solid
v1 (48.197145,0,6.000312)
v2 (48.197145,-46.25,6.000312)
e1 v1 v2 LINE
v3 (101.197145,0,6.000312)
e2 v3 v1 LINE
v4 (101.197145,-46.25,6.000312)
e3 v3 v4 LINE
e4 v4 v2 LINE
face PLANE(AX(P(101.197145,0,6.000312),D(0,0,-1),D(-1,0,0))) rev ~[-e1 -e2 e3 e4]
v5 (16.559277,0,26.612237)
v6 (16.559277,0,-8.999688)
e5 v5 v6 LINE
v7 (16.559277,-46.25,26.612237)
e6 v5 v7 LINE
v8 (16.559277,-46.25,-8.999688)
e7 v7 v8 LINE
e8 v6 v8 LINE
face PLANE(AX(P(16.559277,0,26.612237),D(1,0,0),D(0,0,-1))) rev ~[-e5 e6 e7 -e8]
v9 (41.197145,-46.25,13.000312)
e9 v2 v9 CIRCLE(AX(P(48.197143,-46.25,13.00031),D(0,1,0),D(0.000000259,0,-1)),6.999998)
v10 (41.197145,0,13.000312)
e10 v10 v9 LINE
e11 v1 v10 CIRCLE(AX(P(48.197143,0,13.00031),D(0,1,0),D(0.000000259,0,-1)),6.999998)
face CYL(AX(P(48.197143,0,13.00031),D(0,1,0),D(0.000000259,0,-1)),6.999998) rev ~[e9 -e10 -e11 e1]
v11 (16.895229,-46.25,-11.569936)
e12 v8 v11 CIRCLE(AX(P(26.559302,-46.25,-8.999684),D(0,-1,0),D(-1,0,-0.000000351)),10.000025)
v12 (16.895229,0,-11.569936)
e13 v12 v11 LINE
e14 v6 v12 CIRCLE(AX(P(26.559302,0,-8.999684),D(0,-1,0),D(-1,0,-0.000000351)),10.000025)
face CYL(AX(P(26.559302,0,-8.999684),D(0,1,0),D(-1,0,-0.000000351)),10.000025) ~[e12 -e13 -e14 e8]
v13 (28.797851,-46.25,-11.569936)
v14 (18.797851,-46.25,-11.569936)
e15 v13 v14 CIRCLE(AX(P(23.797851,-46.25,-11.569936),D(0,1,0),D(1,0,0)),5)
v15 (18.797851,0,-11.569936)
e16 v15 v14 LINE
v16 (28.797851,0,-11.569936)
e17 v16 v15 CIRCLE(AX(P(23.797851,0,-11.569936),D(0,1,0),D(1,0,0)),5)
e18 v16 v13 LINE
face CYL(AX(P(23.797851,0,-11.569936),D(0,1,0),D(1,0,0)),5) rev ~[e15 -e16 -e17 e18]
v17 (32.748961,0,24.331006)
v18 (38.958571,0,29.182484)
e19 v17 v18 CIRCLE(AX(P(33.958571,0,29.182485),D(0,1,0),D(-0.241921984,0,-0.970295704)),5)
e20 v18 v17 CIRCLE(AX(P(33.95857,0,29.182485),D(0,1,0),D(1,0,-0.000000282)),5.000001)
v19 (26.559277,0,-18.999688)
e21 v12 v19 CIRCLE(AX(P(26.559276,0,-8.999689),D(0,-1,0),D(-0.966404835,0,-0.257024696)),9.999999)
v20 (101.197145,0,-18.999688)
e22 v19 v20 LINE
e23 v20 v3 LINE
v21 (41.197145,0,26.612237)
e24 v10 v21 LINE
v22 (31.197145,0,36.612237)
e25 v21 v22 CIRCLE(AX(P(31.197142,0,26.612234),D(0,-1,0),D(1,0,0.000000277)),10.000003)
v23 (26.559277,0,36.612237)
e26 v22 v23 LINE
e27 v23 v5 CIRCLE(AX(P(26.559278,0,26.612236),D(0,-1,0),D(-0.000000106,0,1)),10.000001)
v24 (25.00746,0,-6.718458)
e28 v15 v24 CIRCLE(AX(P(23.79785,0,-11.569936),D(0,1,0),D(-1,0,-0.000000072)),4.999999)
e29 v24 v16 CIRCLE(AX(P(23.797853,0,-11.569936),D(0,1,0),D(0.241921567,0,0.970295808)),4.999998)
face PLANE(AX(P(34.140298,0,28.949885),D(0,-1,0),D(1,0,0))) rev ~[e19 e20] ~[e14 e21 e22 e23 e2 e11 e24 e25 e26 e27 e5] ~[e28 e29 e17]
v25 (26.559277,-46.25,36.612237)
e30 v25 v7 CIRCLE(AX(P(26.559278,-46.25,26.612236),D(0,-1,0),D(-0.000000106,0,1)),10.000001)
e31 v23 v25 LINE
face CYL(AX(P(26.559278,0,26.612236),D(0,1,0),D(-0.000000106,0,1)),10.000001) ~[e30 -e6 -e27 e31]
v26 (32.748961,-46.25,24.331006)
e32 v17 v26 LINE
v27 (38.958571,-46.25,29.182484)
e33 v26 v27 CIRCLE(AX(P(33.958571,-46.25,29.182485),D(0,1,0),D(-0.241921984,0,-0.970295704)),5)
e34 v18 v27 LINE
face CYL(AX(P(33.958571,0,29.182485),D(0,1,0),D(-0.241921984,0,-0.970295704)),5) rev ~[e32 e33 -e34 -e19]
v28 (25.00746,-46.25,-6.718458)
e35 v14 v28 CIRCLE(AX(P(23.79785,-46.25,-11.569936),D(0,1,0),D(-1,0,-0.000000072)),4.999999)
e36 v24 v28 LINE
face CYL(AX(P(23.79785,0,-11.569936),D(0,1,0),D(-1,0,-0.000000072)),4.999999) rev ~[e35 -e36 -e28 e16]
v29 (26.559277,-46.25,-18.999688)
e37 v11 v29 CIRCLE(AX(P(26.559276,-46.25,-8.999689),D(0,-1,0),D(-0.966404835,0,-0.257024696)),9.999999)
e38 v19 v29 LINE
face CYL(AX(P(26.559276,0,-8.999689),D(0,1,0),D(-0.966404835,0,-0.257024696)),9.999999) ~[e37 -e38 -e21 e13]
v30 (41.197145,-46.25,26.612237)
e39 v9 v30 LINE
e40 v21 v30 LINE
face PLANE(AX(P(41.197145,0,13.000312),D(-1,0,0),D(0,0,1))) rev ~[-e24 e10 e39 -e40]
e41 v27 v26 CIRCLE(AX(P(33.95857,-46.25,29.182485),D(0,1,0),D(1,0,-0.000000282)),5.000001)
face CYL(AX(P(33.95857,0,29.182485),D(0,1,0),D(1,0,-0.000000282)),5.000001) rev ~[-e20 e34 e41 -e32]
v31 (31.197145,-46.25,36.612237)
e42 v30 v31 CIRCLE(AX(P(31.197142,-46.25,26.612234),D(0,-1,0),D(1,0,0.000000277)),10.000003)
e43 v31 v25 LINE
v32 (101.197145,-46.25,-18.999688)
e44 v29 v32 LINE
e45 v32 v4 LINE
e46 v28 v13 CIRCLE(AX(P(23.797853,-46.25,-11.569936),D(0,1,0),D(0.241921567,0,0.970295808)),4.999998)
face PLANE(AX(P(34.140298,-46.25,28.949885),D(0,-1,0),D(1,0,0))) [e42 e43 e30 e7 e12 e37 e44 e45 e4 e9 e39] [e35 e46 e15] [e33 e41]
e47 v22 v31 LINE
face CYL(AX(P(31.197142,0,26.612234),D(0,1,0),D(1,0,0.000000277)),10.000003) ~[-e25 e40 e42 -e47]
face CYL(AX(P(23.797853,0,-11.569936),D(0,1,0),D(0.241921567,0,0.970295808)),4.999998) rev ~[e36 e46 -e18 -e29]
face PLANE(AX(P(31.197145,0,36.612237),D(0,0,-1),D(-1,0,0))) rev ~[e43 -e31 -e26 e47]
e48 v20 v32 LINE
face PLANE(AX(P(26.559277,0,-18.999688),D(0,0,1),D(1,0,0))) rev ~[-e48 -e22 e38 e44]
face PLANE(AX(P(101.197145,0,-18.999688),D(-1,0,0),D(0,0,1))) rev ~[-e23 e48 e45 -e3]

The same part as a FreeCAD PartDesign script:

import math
import FreeCAD as App
import Part
import Sketcher
from FreeCAD import Vector
Q = App.Units.Quantity

doc = App.newDocument("Part")
params = doc.addObject("Spreadsheet::Sheet", "Params")
for row, (alias, value) in enumerate([
    ("sketch1_radius", "9.999999 mm"),
    ("sketch1_radius2", "6.999998 mm"),
    ("sketch1_radius3", "10.000001 mm"),
    ("sketch1_radius4", "4.999998 mm"),
    ("sketch1_radius5", "4.999999 mm"),
    ("pad1_length", "46.25 mm"),
], start=1):
    params.set(f"A{row}", alias)
    params.set(f"B{row}", "=" + value)
    params.setAlias(f"B{row}", alias)

body = doc.addObject("PartDesign::Body", "Body")

# Sketch on XZ plane
sketch1 = body.newObject("Sketcher::SketchObject", "Sketch")
sketch1.AttachmentSupport = (doc.getObject("XZ_Plane"), [""])
sketch1.MapMode = "FlatFace"
sketch1.addGeometry(Part.ArcOfCircle(Part.Circle(Vector(26.559302, -8.999684, 0), Vector(0, 0, 1), 10.000025), math.radians(-179.99998), math.radians(-165.10642)), False)
sketch1.addGeometry(Part.ArcOfCircle(Part.Circle(Vector(26.559276, -8.999689, 0), Vector(0, 0, 1), 9.999999), math.radians(-165.106409), math.radians(-89.999994)), False)
sketch1.addGeometry(Part.LineSegment(Vector(26.559277, -18.999688, 0), Vector(101.197145, -18.999688, 0)), False)
sketch1.addGeometry(Part.LineSegment(Vector(101.197145, -18.999688, 0), Vector(101.197145, 6.000312, 0)), False)
sketch1.addGeometry(Part.LineSegment(Vector(101.197145, 6.000312, 0), Vector(48.197145, 6.000312, 0)), False)
sketch1.addGeometry(Part.ArcOfCircle(Part.Circle(Vector(48.197143, 13.00031, 0), Vector(0, 0, 1), 6.999998), math.radians(179.999985), math.radians(270.000015)), False)
sketch1.addGeometry(Part.LineSegment(Vector(41.197145, 13.000312, 0), Vector(41.197145, 26.612237, 0)), False)
sketch1.addGeometry(Part.ArcOfCircle(Part.Circle(Vector(31.197142, 26.612234, 0), Vector(0, 0, 1), 10.000003), math.radians(0.000016), math.radians(89.999984)), False)
sketch1.addGeometry(Part.LineSegment(Vector(31.197145, 36.612237, 0), Vector(26.559277, 36.612237, 0)), False)
sketch1.addGeometry(Part.ArcOfCircle(Part.Circle(Vector(26.559278, 26.612236, 0), Vector(0, 0, 1), 10.000001), math.radians(90.000006), math.radians(179.999994)), False)
sketch1.addGeometry(Part.LineSegment(Vector(16.559277, 26.612237, 0), Vector(16.559277, -8.999688, 0)), False)
sketch1.addGeometry(Part.ArcOfCircle(Part.Circle(Vector(23.797853, -11.569936, 0), Vector(0, 0, 1), 4.999998), math.radians(-0.000005), math.radians(76.000019)), False)
sketch1.addGeometry(Part.ArcOfCircle(Part.Circle(Vector(23.797851, -11.569936, 0), Vector(0, 0, 1), 5), math.radians(180), math.radians(360)), False)
sketch1.addGeometry(Part.ArcOfCircle(Part.Circle(Vector(23.79785, -11.569936, 0), Vector(0, 0, 1), 4.999999), math.radians(75.999993), math.radians(180.000004)), False)
sketch1.addGeometry(Part.ArcOfCircle(Part.Circle(Vector(33.958571, 29.182485, 0), Vector(0, 0, 1), 5), math.radians(-0.000007), math.radians(255.999995)), False)
sketch1.addGeometry(Part.ArcOfCircle(Part.Circle(Vector(33.95857, 29.182485, 0), Vector(0, 0, 1), 5.000001), math.radians(-103.999996), math.radians(-0.000016)), False)
sketch1.addConstraint(Sketcher.Constraint("Coincident", 0, 2, 1, 1))
sketch1.addConstraint(Sketcher.Constraint("Coincident", 1, 2, 2, 1))
sketch1.addConstraint(Sketcher.Constraint("Coincident", 2, 2, 3, 1))
sketch1.addConstraint(Sketcher.Constraint("Coincident", 3, 2, 4, 1))
sketch1.addConstraint(Sketcher.Constraint("Coincident", 4, 2, 5, 2))
sketch1.addConstraint(Sketcher.Constraint("Coincident", 5, 1, 6, 1))
sketch1.addConstraint(Sketcher.Constraint("Coincident", 6, 2, 7, 1))
sketch1.addConstraint(Sketcher.Constraint("Coincident", 7, 2, 8, 1))
sketch1.addConstraint(Sketcher.Constraint("Coincident", 8, 2, 9, 1))
sketch1.addConstraint(Sketcher.Constraint("Coincident", 9, 2, 10, 1))
sketch1.addConstraint(Sketcher.Constraint("Coincident", 10, 2, 0, 1))
sketch1.addConstraint(Sketcher.Constraint("Coincident", 11, 1, 12, 2))
sketch1.addConstraint(Sketcher.Constraint("Coincident", 12, 1, 13, 2))
sketch1.addConstraint(Sketcher.Constraint("Coincident", 13, 1, 11, 2))
sketch1.addConstraint(Sketcher.Constraint("Coincident", 14, 1, 15, 2))
sketch1.addConstraint(Sketcher.Constraint("Coincident", 15, 1, 14, 2))
sketch1.addConstraint(Sketcher.Constraint("Horizontal", 2))
sketch1.addConstraint(Sketcher.Constraint("Vertical", 3))
sketch1.addConstraint(Sketcher.Constraint("Horizontal", 4))
sketch1.addConstraint(Sketcher.Constraint("Vertical", 6))
sketch1.addConstraint(Sketcher.Constraint("Horizontal", 8))
sketch1.addConstraint(Sketcher.Constraint("Vertical", 10))
sketch1.addConstraint(Sketcher.Constraint("Coincident", 12, 3, 11, 3))
sketch1.addConstraint(Sketcher.Constraint("Radius", 1, Q("9.999999 mm")))
sketch1.addConstraint(Sketcher.Constraint("Radius", 5, Q("6.999998 mm")))
sketch1.addConstraint(Sketcher.Constraint("Radius", 9, Q("10.000001 mm")))
sketch1.addConstraint(Sketcher.Constraint("Radius", 11, Q("4.999998 mm")))
sketch1.addConstraint(Sketcher.Constraint("Radius", 13, Q("4.999999 mm")))
sketch1.addConstraint(Sketcher.Constraint("Radius", 14, Q("5 mm")))
sketch1.addConstraint(Sketcher.Constraint("Radius", 15, Q("5.000001 mm")))
sketch1.addConstraint(Sketcher.Constraint("DistanceX", 4, 2, 4, 1, Q("53 mm")))
sketch1.addConstraint(Sketcher.Constraint("DistanceY", 3, 1, 3, 2, Q("25 mm")))
sketch1.addConstraint(Sketcher.Constraint("DistanceX", 7, 3, 5, 3, Q("17.000001 mm")))
sketch1.addConstraint(Sketcher.Constraint("DistanceX", 5, 3, 2, 2, Q("53.000002 mm")))
sketch1.addConstraint(Sketcher.Constraint("DistanceY", 4, 2, 5, 1, Q("7 mm")))
sketch1.addConstraint(Sketcher.Constraint("DistanceX", 7, 2, 6, 2, Q("10 mm")))
sketch1.addConstraint(Sketcher.Constraint("DistanceY", 6, 2, 7, 2, Q("10 mm")))
sketch1.addConstraint(Sketcher.Constraint("DistanceX", 9, 2, 8, 2, Q("10 mm")))
sketch1.addConstraint(Sketcher.Constraint("DistanceY", 9, 2, 8, 2, Q("10 mm")))
sketch1.addConstraint(Sketcher.Constraint("DistanceX", 10, 2, 1, 3, Q("9.999999 mm")))
sketch1.addConstraint(Sketcher.Constraint("Radius", 0, Q("10.000025 mm")))
sketch1.addConstraint(Sketcher.Constraint("DistanceX", -1, 1, 0, 3, Q("26.559302 mm")))
sketch1.addConstraint(Sketcher.Constraint("DistanceX", 2, 1, 2, 2, Q("74.637868 mm")))
sketch1.addConstraint(Sketcher.Constraint("DistanceX", 8, 2, 8, 1, Q("4.637868 mm")))
sketch1.addConstraint(Sketcher.Constraint("DistanceY", 6, 1, 6, 2, Q("13.611925 mm")))
sketch1.addConstraint(Sketcher.Constraint("DistanceY", 10, 2, 10, 1, Q("35.611925 mm")))
sketch1.addConstraint(Sketcher.Constraint("DistanceY", 1, 3, -1, 1, Q("8.999689 mm")))
sketch1.addConstraint(Sketcher.Constraint("DistanceX", -1, 1, 12, 3, Q("23.797851 mm")))
sketch1.addConstraint(Sketcher.Constraint("DistanceX", -1, 1, 14, 3, Q("33.958571 mm")))
sketch1.addConstraint(Sketcher.Constraint("DistanceX", -1, 1, 0, 2, Q("16.895229 mm")))
sketch1.addConstraint(Sketcher.Constraint("DistanceX", -1, 1, 13, 1, Q("25.00746 mm")))
sketch1.addConstraint(Sketcher.Constraint("DistanceY", 13, 1, -1, 1, Q("6.718458 mm")))
sketch1.addConstraint(Sketcher.Constraint("DistanceX", -1, 1, 15, 1, Q("32.748961 mm")))
sketch1.addConstraint(Sketcher.Constraint("DistanceY", 7, 3, 14, 3, Q("2.57025 mm")))
sketch1.addConstraint(Sketcher.Constraint("DistanceY", 11, 1, 0, 3, Q("2.570252 mm")))
sketch1.addConstraint(Sketcher.Constraint("DistanceY", 7, 3, 14, 1, Q("2.57025 mm")))
sketch1.addConstraint(Sketcher.Constraint("DistanceY", 12, 1, -1, 1, Q("11.569936 mm")))
sketch1.setExpression("Constraints[23]", "Params.sketch1_radius")
sketch1.setExpression("Constraints[24]", "Params.sketch1_radius2")
sketch1.setExpression("Constraints[25]", "Params.sketch1_radius3")
sketch1.setExpression("Constraints[26]", "Params.sketch1_radius4")
sketch1.setExpression("Constraints[27]", "Params.sketch1_radius5")
pad1 = body.newObject("PartDesign::Pad", "Pad")
pad1.Profile = sketch1
pad1.setExpression("Length", "Params.pad1_length")

doc.recompute()
